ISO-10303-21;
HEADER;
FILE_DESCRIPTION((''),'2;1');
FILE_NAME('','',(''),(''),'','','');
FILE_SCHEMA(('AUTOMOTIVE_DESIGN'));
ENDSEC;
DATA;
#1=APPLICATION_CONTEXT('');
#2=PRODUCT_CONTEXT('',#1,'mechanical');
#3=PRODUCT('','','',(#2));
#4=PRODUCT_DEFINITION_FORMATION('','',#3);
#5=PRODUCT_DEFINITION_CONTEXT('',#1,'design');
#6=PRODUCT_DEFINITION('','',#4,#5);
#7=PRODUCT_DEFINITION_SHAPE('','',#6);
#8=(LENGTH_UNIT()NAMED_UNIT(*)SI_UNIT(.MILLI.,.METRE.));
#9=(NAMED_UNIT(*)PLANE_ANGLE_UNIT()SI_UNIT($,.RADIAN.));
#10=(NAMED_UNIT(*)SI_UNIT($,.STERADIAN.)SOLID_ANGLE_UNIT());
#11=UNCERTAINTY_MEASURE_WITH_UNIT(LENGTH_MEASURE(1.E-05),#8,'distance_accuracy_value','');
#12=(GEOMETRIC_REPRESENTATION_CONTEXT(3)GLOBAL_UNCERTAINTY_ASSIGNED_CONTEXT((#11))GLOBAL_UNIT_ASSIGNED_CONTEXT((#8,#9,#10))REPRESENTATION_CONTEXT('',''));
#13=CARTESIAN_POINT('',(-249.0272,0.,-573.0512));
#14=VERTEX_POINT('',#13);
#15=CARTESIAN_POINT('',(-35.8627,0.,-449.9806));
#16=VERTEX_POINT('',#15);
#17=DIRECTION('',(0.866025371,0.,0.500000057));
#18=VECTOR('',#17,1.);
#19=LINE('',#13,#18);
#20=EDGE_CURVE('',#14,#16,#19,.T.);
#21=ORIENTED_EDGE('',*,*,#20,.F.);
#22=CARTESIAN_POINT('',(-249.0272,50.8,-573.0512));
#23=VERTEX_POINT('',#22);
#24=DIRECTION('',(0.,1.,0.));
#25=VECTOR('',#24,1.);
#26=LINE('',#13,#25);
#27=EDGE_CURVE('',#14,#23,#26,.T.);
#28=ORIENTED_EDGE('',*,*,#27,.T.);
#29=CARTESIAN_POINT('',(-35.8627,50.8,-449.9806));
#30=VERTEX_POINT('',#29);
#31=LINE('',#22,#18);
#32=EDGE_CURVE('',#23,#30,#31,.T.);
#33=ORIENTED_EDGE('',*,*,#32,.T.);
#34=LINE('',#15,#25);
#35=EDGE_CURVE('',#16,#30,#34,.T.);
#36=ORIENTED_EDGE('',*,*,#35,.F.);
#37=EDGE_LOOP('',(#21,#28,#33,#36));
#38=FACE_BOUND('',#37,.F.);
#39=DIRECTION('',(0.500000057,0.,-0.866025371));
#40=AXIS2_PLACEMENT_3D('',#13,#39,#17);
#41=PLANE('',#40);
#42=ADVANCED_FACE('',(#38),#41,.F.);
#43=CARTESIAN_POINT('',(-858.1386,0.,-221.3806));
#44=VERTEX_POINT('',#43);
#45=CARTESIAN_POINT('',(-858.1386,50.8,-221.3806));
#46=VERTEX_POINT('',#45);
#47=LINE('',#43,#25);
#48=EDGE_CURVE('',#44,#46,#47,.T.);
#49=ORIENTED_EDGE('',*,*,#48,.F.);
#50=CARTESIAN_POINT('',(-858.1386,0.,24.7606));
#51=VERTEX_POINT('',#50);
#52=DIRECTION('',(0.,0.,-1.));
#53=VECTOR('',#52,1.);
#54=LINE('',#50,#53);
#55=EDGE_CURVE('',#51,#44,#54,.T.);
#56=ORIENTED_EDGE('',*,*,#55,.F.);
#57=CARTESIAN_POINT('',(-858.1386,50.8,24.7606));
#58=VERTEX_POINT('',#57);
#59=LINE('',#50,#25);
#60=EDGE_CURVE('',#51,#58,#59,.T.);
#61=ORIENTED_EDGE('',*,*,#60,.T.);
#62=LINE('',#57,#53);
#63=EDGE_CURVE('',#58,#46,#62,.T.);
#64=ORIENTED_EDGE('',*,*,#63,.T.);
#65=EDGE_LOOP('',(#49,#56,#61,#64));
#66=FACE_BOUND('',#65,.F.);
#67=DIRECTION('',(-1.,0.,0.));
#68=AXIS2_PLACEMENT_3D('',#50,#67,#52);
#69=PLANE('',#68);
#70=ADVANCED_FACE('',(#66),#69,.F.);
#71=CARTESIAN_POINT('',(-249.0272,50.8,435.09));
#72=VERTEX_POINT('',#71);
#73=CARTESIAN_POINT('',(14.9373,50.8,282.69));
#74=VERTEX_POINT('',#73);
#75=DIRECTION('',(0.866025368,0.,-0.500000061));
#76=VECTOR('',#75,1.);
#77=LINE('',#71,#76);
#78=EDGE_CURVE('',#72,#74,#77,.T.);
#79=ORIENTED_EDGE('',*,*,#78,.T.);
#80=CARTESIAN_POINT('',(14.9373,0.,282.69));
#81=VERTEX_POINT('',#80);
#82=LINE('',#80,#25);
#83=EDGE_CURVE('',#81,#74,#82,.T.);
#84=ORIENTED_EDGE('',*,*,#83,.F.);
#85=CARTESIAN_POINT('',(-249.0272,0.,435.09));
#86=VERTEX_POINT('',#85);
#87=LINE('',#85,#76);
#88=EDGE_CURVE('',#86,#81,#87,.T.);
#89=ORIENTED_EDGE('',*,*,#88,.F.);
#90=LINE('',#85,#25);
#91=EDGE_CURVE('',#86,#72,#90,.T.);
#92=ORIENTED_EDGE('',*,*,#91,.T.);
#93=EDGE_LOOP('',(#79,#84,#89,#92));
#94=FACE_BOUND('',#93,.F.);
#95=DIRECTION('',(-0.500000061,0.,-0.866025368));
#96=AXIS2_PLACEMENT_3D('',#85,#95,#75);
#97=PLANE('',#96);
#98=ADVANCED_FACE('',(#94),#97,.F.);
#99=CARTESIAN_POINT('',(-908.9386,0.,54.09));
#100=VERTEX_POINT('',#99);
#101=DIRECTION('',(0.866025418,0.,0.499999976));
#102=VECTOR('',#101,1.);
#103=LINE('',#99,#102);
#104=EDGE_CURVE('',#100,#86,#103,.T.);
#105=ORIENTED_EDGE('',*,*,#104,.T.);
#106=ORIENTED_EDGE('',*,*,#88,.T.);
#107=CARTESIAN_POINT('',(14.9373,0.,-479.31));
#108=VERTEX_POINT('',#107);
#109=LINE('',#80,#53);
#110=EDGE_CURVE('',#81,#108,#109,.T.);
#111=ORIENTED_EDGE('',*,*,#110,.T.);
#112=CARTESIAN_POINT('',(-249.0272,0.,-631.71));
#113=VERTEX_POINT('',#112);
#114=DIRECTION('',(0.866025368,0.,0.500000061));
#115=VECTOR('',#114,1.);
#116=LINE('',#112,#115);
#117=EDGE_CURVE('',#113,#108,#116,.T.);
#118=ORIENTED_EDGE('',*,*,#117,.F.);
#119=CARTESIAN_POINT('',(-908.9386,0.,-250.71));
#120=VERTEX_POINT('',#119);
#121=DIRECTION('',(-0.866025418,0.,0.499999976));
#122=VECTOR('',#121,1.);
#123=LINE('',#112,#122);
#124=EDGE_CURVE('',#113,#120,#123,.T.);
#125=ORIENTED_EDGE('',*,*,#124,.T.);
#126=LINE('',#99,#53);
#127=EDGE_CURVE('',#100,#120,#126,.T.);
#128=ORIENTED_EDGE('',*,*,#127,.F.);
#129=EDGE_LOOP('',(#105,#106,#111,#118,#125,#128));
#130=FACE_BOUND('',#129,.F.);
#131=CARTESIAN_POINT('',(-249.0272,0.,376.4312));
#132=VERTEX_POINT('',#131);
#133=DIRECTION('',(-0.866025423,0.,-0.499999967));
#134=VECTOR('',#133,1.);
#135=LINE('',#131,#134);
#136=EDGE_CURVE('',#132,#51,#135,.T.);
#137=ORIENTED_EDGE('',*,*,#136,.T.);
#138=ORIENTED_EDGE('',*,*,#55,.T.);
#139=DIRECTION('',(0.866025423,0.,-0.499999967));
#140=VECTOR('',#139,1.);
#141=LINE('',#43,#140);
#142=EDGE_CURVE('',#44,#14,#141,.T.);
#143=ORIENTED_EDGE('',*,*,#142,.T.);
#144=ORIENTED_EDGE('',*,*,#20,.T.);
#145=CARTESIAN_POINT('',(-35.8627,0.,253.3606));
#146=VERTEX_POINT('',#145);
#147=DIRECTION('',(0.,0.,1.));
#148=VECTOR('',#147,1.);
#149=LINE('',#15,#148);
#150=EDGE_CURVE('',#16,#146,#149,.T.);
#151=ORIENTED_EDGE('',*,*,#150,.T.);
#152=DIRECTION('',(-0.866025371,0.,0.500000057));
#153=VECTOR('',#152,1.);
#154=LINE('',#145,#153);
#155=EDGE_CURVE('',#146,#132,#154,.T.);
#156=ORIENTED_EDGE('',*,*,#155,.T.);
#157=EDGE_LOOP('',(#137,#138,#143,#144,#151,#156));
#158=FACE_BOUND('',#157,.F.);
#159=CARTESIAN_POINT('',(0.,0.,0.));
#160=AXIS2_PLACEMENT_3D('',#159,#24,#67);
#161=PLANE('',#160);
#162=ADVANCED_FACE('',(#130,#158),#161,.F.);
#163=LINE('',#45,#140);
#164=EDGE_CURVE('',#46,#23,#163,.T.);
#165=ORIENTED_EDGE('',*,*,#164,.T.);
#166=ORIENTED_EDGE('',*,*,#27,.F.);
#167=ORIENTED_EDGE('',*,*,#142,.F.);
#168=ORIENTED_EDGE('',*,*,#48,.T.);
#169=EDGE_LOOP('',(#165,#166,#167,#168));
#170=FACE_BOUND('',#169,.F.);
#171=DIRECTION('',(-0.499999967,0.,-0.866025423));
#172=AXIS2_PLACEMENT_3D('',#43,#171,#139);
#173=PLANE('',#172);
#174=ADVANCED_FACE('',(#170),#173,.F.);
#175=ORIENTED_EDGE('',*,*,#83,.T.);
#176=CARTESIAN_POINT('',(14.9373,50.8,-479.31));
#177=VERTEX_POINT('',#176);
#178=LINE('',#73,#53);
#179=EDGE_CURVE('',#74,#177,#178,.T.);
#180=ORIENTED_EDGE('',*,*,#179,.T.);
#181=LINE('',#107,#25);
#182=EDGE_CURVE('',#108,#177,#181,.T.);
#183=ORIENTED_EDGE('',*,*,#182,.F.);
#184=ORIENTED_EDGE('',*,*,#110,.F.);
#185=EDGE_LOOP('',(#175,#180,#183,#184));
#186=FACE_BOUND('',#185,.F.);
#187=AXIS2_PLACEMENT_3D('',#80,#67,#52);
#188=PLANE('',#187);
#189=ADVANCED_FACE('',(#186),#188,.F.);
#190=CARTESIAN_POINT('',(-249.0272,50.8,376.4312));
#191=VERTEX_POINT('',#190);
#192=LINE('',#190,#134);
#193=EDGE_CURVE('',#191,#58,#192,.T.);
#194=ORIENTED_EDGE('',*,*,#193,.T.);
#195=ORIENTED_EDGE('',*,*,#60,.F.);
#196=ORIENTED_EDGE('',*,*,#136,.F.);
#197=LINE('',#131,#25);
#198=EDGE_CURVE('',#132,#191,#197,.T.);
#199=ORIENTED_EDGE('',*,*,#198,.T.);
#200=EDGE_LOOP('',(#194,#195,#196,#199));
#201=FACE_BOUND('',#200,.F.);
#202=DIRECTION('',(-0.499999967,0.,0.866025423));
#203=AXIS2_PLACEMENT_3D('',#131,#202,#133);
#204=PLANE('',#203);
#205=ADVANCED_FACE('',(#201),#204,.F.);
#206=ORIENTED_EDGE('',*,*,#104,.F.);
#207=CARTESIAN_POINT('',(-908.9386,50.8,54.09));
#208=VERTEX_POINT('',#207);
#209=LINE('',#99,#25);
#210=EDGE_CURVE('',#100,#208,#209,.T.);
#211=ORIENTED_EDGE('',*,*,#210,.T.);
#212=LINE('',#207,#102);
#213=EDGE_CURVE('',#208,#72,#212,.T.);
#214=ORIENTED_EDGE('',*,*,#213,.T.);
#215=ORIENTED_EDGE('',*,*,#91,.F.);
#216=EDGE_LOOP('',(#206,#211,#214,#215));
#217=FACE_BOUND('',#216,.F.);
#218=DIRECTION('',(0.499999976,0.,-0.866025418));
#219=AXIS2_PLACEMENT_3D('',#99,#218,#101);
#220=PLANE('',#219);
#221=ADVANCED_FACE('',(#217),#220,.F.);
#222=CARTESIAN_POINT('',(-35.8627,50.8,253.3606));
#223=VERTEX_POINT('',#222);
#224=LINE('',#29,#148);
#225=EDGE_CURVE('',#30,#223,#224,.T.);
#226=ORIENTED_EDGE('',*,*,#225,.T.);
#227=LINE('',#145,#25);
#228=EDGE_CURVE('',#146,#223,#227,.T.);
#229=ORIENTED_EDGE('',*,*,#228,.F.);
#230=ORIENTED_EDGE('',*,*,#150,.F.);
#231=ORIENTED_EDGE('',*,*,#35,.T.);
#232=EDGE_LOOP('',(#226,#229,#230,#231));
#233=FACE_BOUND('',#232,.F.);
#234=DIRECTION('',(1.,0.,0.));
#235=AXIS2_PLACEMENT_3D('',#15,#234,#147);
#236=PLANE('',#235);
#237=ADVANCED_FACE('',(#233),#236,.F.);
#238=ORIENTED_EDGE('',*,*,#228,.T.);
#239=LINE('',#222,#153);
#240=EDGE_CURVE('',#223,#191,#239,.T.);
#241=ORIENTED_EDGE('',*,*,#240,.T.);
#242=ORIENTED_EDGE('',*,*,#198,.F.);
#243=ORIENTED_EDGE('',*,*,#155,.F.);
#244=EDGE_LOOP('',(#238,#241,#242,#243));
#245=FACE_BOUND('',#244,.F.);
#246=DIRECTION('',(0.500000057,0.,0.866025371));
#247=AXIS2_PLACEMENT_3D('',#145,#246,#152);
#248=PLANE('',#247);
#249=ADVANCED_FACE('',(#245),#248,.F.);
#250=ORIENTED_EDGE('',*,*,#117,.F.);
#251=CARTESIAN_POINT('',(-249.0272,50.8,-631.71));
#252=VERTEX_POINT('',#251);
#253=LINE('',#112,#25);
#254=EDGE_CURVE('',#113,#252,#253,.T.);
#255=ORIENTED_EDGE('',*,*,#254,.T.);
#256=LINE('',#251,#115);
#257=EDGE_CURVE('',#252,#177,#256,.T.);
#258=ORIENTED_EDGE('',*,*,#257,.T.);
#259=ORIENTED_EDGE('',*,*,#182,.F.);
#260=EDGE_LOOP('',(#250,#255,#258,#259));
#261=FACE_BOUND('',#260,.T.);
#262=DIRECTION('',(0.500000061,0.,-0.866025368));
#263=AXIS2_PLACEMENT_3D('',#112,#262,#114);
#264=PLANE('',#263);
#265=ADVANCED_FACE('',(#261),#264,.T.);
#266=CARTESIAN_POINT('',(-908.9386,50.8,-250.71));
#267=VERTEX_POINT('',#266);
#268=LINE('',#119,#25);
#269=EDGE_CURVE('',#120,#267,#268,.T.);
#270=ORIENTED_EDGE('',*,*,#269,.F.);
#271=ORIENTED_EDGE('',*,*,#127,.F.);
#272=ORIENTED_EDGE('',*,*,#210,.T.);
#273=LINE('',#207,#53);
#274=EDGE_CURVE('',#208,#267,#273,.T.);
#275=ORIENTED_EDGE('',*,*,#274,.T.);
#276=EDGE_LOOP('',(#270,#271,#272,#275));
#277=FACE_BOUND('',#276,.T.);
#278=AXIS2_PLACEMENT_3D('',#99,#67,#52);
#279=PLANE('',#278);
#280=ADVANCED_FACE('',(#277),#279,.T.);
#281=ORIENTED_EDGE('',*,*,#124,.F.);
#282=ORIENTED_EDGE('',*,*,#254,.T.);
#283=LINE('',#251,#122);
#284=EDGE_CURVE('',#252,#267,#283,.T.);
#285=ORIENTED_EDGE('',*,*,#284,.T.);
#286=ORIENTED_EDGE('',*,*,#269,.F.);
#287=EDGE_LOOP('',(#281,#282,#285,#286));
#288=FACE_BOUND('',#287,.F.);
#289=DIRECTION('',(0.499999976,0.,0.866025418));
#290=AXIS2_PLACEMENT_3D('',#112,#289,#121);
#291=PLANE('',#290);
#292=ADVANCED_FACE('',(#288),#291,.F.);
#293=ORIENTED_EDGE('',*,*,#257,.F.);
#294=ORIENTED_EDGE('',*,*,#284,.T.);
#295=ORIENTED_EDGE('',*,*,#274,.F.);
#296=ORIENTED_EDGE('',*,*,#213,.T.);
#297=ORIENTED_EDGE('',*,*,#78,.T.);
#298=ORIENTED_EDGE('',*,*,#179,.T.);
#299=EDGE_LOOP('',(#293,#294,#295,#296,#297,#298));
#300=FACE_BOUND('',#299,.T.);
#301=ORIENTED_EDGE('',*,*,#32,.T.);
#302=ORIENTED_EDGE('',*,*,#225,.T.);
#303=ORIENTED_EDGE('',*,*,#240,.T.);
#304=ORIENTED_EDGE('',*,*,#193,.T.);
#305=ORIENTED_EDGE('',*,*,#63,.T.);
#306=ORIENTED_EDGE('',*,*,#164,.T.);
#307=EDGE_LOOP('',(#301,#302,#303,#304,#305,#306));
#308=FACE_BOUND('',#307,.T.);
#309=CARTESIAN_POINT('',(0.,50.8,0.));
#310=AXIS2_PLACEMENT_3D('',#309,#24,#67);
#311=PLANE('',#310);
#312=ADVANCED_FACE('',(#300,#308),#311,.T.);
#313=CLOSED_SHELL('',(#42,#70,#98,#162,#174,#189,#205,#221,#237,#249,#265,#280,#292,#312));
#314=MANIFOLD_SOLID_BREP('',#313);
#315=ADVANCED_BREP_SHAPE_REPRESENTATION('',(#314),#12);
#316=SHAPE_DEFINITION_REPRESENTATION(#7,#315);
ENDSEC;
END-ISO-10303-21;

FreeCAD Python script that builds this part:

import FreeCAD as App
import Part
import Sketcher
Q = App.Units.Quantity

doc = App.newDocument("Part")
body = doc.addObject("PartDesign::Body", "Body")

# Sketch on XZ plane
sketch1 = body.newObject("Sketcher::SketchObject", "Sketch")
sketch1.AttachmentSupport = (doc.getObject("XZ_Plane"), [""])
sketch1.MapMode = "FlatFace"
sketch1.addGeometry([
    Part.LineSegment(App.Vector(-909, -251, 0), App.Vector(-909, 54, 0)),  # 0
    Part.LineSegment(App.Vector(-909, 54, 0), App.Vector(-249, 435, 0)),  # 1
    Part.LineSegment(App.Vector(-249, 435, 0), App.Vector(15, 283, 0)),  # 2
    Part.LineSegment(App.Vector(15, 283, 0), App.Vector(15, -479, 0)),  # 3
    Part.LineSegment(App.Vector(15, -479, 0), App.Vector(-249, -632, 0)),  # 4
    Part.LineSegment(App.Vector(-249, -632, 0), App.Vector(-909, -251, 0)),  # 5
    Part.LineSegment(App.Vector(-36, 253, 0), App.Vector(-249, 376, 0)),  # 6
    Part.LineSegment(App.Vector(-249, 376, 0), App.Vector(-858, 25, 0)),  # 7
    Part.LineSegment(App.Vector(-858, 25, 0), App.Vector(-858, -221, 0)),  # 8
    Part.LineSegment(App.Vector(-858, -221, 0), App.Vector(-249, -573, 0)),  # 9
    Part.LineSegment(App.Vector(-249, -573, 0), App.Vector(-36, -450, 0)),  # 10
    Part.LineSegment(App.Vector(-36, -450, 0), App.Vector(-36, 253, 0)),  # 11
], False)
sketch1.addConstraint([
    Sketcher.Constraint("Coincident", 0, 2, 1, 1),
    Sketcher.Constraint("Coincident", 1, 2, 2, 1),
    Sketcher.Constraint("Coincident", 2, 2, 3, 1),
    Sketcher.Constraint("Coincident", 3, 2, 4, 1),
    Sketcher.Constraint("Coincident", 4, 2, 5, 1),
    Sketcher.Constraint("Coincident", 5, 2, 0, 1),
    Sketcher.Constraint("Coincident", 6, 2, 7, 1),
    Sketcher.Constraint("Coincident", 7, 2, 8, 1),
    Sketcher.Constraint("Coincident", 8, 2, 9, 1),
    Sketcher.Constraint("Coincident", 9, 2, 10, 1),
    Sketcher.Constraint("Coincident", 10, 2, 11, 1),
    Sketcher.Constraint("Coincident", 11, 2, 6, 1),
    Sketcher.Constraint("Vertical", 0),
    Sketcher.Constraint("Vertical", 3),
    Sketcher.Constraint("Vertical", 8),
    Sketcher.Constraint("Vertical", 11),
    Sketcher.Constraint("Parallel", 1, 4),
    Sketcher.Constraint("Parallel", 2, 5),
    Sketcher.Constraint("Parallel", 5, 6),
    Sketcher.Constraint("Parallel", 4, 7),
    Sketcher.Constraint("Parallel", 6, 9),
    Sketcher.Constraint("Parallel", 7, 10),
    Sketcher.Constraint("Vertical", 1, 2, 4, 2),
    Sketcher.Constraint("Vertical", 4, 2, 6, 2),
    Sketcher.Constraint("Vertical", 6, 2, 9, 2),
    Sketcher.Constraint("Equal", 2, 4),
    Sketcher.Constraint("DistanceX", 0, 2, 7, 2, Q("2 in")),
    Sketcher.Constraint("DistanceX", 10, 2, 3, 2, Q("2 in")),
    Sketcher.Constraint("DistanceY", 0, 1, 0, 2, Q("12 in")),
    Sketcher.Constraint("DistanceY", 3, 2, 3, 1, Q("30 in")),
    Sketcher.Constraint("Distance", 1, Q("30 in")),
    Sketcher.Constraint("Distance", 2, Q("12 in")),
    Sketcher.Constraint("DistanceY", 8, 2, 8, 1, Q("9.6906 in")),
    Sketcher.Constraint("DistanceY", 6, 2, 1, 2, Q("2.3094 in")),
    Sketcher.Constraint("DistanceX", 0, 2, -1, 1, Q("908.9386 mm")),
    Sketcher.Constraint("DistanceY", -1, 1, 0, 2, Q("54.09 mm")),
])
pad1 = body.newObject("PartDesign::Pad", "Pad")
pad1.Profile = sketch1
pad1.Length = Q("2 in")
pad1.Reversed = True

doc.recompute()
